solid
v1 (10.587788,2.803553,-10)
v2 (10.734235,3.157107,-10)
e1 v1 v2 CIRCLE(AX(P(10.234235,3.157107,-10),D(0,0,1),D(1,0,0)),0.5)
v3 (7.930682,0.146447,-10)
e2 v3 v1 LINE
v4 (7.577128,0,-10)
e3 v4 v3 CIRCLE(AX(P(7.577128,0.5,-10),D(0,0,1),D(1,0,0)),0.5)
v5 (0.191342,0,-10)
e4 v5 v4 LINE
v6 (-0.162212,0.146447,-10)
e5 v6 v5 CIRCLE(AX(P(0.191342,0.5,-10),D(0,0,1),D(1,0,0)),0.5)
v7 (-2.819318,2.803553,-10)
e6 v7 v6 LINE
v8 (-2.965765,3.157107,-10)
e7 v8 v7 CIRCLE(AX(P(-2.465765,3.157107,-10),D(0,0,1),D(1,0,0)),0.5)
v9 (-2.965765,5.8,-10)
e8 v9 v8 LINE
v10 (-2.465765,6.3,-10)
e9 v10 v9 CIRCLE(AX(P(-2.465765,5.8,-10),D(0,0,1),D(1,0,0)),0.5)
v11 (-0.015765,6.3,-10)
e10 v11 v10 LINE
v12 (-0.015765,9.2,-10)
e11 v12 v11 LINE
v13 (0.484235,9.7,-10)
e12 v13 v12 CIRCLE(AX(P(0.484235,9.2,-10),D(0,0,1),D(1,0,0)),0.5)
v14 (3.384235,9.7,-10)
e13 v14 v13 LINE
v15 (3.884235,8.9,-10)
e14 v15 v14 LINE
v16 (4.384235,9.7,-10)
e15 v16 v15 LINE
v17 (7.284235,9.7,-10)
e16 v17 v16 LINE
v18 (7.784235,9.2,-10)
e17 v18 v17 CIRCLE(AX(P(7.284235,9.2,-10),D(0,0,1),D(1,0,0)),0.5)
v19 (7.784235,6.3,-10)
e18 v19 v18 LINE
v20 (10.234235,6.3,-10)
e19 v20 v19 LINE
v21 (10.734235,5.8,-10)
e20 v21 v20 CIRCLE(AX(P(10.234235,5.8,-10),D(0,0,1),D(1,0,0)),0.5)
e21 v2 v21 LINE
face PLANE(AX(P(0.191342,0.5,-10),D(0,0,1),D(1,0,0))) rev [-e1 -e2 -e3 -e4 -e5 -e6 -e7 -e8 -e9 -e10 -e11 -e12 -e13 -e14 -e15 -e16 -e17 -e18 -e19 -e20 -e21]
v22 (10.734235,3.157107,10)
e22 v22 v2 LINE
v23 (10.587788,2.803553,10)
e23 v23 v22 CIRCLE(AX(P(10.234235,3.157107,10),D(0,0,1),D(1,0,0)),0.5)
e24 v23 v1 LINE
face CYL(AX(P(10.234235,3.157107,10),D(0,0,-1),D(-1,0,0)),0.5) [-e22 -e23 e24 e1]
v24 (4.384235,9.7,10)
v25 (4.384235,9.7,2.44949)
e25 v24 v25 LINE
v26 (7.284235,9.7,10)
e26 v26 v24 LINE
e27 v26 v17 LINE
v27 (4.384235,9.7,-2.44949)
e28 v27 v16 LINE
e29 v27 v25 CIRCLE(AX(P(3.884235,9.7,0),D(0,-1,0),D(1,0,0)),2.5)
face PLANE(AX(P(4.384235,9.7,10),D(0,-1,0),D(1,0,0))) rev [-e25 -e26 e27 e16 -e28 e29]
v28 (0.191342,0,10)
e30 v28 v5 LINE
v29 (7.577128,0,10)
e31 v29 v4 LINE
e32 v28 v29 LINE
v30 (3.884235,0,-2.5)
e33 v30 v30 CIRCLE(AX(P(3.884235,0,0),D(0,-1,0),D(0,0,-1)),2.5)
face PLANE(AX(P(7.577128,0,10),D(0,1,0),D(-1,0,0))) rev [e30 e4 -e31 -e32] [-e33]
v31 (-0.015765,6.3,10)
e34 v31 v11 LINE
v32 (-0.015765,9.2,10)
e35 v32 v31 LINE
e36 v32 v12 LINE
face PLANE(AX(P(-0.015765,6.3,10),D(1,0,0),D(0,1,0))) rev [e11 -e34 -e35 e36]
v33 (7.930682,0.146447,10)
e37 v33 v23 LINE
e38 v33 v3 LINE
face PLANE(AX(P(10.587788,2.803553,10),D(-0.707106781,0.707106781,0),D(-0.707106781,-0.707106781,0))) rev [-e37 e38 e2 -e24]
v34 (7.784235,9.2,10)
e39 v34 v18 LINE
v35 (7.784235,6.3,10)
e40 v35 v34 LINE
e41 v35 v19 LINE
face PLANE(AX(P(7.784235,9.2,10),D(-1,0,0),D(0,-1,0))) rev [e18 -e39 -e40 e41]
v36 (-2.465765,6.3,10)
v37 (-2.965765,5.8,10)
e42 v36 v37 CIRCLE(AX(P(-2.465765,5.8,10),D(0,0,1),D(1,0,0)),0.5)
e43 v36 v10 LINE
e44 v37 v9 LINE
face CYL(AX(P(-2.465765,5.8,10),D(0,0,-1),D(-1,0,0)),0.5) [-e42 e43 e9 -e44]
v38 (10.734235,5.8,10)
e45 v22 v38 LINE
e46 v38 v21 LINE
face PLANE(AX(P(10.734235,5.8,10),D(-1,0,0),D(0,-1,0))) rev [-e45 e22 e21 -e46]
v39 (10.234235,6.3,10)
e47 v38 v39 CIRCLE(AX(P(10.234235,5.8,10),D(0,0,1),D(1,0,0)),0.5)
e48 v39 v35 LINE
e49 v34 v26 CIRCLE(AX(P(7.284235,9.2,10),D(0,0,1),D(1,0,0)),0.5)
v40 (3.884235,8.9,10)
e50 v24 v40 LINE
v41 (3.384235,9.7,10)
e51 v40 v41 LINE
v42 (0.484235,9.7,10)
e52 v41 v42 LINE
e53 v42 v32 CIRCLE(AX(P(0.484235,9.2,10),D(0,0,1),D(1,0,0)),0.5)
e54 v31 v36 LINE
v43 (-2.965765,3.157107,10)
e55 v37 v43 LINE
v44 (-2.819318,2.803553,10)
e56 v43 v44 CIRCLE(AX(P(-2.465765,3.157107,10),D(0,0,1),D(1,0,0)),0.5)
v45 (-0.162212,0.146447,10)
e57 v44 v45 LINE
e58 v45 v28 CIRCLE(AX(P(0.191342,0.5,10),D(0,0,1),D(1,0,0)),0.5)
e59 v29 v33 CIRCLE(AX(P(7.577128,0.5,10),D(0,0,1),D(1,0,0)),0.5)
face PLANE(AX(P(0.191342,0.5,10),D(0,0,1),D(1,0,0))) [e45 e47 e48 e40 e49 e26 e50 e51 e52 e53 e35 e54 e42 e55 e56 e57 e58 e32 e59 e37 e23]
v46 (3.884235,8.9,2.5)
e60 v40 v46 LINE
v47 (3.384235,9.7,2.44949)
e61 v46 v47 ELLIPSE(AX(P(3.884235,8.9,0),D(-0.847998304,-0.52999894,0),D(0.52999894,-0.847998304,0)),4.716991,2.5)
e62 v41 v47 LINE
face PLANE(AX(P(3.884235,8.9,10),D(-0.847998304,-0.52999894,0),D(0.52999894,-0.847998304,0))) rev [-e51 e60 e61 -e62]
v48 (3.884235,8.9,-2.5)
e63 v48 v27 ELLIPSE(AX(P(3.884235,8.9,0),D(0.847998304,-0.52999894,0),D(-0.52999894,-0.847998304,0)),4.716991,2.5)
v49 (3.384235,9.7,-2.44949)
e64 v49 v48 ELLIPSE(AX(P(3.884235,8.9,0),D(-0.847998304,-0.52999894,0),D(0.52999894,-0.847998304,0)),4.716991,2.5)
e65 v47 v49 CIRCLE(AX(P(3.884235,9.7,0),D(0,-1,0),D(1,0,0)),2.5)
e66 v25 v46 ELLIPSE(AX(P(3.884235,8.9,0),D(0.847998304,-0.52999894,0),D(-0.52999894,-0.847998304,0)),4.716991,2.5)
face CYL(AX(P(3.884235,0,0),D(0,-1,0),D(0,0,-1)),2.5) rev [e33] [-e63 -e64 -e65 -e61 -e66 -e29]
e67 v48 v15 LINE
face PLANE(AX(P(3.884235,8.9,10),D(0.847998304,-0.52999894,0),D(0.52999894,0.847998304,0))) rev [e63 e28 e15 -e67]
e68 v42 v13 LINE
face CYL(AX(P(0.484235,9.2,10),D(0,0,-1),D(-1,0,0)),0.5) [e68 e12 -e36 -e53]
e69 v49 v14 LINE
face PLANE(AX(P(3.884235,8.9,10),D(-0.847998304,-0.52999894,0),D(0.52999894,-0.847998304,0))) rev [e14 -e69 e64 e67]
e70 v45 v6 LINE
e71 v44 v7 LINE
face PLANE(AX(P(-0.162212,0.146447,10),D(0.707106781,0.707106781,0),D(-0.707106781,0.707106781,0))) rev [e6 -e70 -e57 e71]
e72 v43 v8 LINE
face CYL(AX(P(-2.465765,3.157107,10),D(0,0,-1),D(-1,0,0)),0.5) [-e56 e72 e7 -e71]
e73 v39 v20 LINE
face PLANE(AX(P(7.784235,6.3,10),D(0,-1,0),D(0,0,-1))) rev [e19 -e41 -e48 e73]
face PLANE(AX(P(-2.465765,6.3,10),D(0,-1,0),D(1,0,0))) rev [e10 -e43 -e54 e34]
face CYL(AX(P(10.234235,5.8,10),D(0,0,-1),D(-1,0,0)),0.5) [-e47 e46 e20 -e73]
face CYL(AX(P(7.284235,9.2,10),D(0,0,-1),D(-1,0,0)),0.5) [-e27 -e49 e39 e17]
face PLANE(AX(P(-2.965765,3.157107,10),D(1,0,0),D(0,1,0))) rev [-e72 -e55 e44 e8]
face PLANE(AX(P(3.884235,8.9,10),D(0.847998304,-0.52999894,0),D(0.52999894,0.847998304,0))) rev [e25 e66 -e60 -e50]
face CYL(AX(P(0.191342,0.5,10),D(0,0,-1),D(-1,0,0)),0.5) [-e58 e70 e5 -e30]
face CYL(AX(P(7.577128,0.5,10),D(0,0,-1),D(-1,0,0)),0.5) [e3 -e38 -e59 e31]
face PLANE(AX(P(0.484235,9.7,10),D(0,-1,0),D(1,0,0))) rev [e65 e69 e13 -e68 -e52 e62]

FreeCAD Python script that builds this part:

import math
import FreeCAD as App
import Part
import Sketcher

V = App.Vector
Q = App.Units.Quantity

doc = App.newDocument("Part")
body = doc.addObject("PartDesign::Body", "Body")

# Sketch on XY plane
sketch1 = body.newObject("Sketcher::SketchObject", "Sketch")
sketch1.AttachmentSupport = (doc.getObject("XY_Plane"), [""])
sketch1.MapMode = "FlatFace"
sketch1.addGeometry([
    Part.LineSegment(V(-2.82, 2.8, 0), V(-0.16, 0.15, 0)),  # 0
    Part.ArcOfCircle(Part.Circle(V(0.19, 0.5, 0), V(0, 0, 1), 0.5), math.radians(-135), math.radians(-90)),  # 1
    Part.LineSegment(V(0.19, 0, 0), V(7.58, 0, 0)),  # 2
    Part.ArcOfCircle(Part.Circle(V(7.58, 0.5, 0), V(0, 0, 1), 0.5), math.radians(-90), math.radians(-45)),  # 3
    Part.LineSegment(V(7.93, 0.15, 0), V(10.59, 2.8, 0)),  # 4
    Part.ArcOfCircle(Part.Circle(V(10.23, 3.16, 0), V(0, 0, 1), 0.5), math.radians(-45), math.radians(0)),  # 5
    Part.LineSegment(V(10.73, 3.16, 0), V(10.73, 5.8, 0)),  # 6
    Part.ArcOfCircle(Part.Circle(V(10.23, 5.8, 0), V(0, 0, 1), 0.5), math.radians(0), math.radians(90)),  # 7
    Part.LineSegment(V(10.23, 6.3, 0), V(7.78, 6.3, 0)),  # 8
    Part.LineSegment(V(7.78, 6.3, 0), V(7.78, 9.2, 0)),  # 9
    Part.ArcOfCircle(Part.Circle(V(7.28, 9.2, 0), V(0, 0, 1), 0.5), math.radians(0), math.radians(90)),  # 10
    Part.LineSegment(V(7.28, 9.7, 0), V(4.38, 9.7, 0)),  # 11
    Part.LineSegment(V(4.38, 9.7, 0), V(3.88, 8.9, 0)),  # 12
    Part.LineSegment(V(3.88, 8.9, 0), V(3.38, 9.7, 0)),  # 13
    Part.LineSegment(V(3.38, 9.7, 0), V(0.48, 9.7, 0)),  # 14
    Part.ArcOfCircle(Part.Circle(V(0.48, 9.2, 0), V(0, 0, 1), 0.5), math.radians(90), math.radians(180)),  # 15
    Part.LineSegment(V(-0.02, 9.2, 0), V(-0.02, 6.3, 0)),  # 16
    Part.LineSegment(V(-0.02, 6.3, 0), V(-2.47, 6.3, 0)),  # 17
    Part.ArcOfCircle(Part.Circle(V(-2.47, 5.8, 0), V(0, 0, 1), 0.5), math.radians(90), math.radians(180)),  # 18
    Part.LineSegment(V(-2.97, 5.8, 0), V(-2.97, 3.16, 0)),  # 19
    Part.ArcOfCircle(Part.Circle(V(-2.47, 3.16, 0), V(0, 0, 1), 0.5), math.radians(-180), math.radians(-135)),  # 20
], False)
sketch1.addConstraint([
    Sketcher.Constraint("Tangent", 0, 2, 1, 1),
    Sketcher.Constraint("Tangent", 1, 2, 2, 1),
    Sketcher.Constraint("Tangent", 2, 2, 3, 1),
    Sketcher.Constraint("Tangent", 3, 2, 4, 1),
    Sketcher.Constraint("Tangent", 4, 2, 5, 1),
    Sketcher.Constraint("Tangent", 5, 2, 6, 1),
    Sketcher.Constraint("Tangent", 6, 2, 7, 1),
    Sketcher.Constraint("Tangent", 7, 2, 8, 1),
    Sketcher.Constraint("Coincident", 8, 2, 9, 1),
    Sketcher.Constraint("Tangent", 9, 2, 10, 1),
    Sketcher.Constraint("Tangent", 10, 2, 11, 1),
    Sketcher.Constraint("Coincident", 11, 2, 12, 1),
    Sketcher.Constraint("Coincident", 12, 2, 13, 1),
    Sketcher.Constraint("Coincident", 13, 2, 14, 1),
    Sketcher.Constraint("Tangent", 14, 2, 15, 1),
    Sketcher.Constraint("Tangent", 15, 2, 16, 1),
    Sketcher.Constraint("Coincident", 16, 2, 17, 1),
    Sketcher.Constraint("Tangent", 17, 2, 18, 1),
    Sketcher.Constraint("Tangent", 18, 2, 19, 1),
    Sketcher.Constraint("Tangent", 19, 2, 20, 1),
    Sketcher.Constraint("Tangent", 20, 2, 0, 1),
    Sketcher.Constraint("Horizontal", 2),
    Sketcher.Constraint("Vertical", 6),
    Sketcher.Constraint("Horizontal", 8),
    Sketcher.Constraint("Vertical", 9),
    Sketcher.Constraint("Horizontal", 11),
    Sketcher.Constraint("Horizontal", 14),
    Sketcher.Constraint("Vertical", 16),
    Sketcher.Constraint("Horizontal", 17),
    Sketcher.Constraint("Vertical", 19),
    Sketcher.Constraint("Equal", 1, 3),
    Sketcher.Constraint("Equal", 3, 5),
    Sketcher.Constraint("Equal", 5, 7),
    Sketcher.Constraint("Equal", 7, 10),
    Sketcher.Constraint("Equal", 10, 15),
    Sketcher.Constraint("Equal", 15, 18),
    Sketcher.Constraint("Equal", 18, 20),
    Sketcher.Constraint("PointOnObject", 1, 2, -1),
    Sketcher.Constraint("Perpendicular", 0, 4),
    Sketcher.Constraint("Horizontal", 10, 3, 15, 3),
    Sketcher.Constraint("Horizontal", 7, 3, 18, 3),
    Sketcher.Constraint("Horizontal", 5, 3, 20, 3),
    Sketcher.Constraint("Horizontal", 0, 2, 3, 2),
    Sketcher.Constraint("Equal", 11, 14),
    Sketcher.Constraint("Equal", 8, 17),
    Sketcher.Constraint("Equal", 14, 9),
    Sketcher.Constraint("Equal", 12, 13),
    Sketcher.Constraint("Radius", 1, Q("0.5 mm")),
    Sketcher.Constraint("DistanceX", 11, 2, 11, 1, Q("2.9 mm")),
    Sketcher.Constraint("DistanceX", 13, 2, 11, 2, Q("1 mm")),
    Sketcher.Constraint("DistanceX", 8, 2, 8, 1, Q("2.45 mm")),
    Sketcher.Constraint("DistanceY", -1, 1, 7, 3, Q("5.8 mm")),
    Sketcher.Constraint("DistanceY", -1, 1, 12, 2, Q("8.9 mm")),
    Sketcher.Constraint("DistanceX", 2, 1, 2, 2, Q("7.385786 mm")),
    Sketcher.Constraint("DistanceX", -1, 1, 1, 3, Q("0.191342 mm")),
])
pad1 = body.newObject("PartDesign::Pad", "Pad")
pad1.Profile = sketch1
pad1.Length = 20
pad1.Midplane = True

# Sketch on XZ plane
sketch2 = body.newObject("Sketcher::SketchObject", "Sketch001")
sketch2.AttachmentSupport = (doc.getObject("XZ_Plane"), [""])
sketch2.MapMode = "FlatFace"
sketch2.addGeometry(Part.Circle(V(3.9, 0, 0), V(0, 0, 1), 2.5), False)
sketch2.addConstraint([
    Sketcher.Constraint("PointOnObject", 0, 3, -1),
    Sketcher.Constraint("Diameter", 0, Q("5 mm")),
    Sketcher.Constraint("DistanceX", -1, 1, 0, 3, Q("3.884235 mm")),
])
doc.recompute()
hole = body.newObject("PartDesign::Hole", "Hole")
hole.Profile = sketch2
hole.ThreadType = "None"
hole.Diameter = 5
hole.DepthType = "Dimension"
hole.Depth = 15
hole.DrillPoint = "Angled"
hole.DrillPointAngle = 118

doc.recompute()
